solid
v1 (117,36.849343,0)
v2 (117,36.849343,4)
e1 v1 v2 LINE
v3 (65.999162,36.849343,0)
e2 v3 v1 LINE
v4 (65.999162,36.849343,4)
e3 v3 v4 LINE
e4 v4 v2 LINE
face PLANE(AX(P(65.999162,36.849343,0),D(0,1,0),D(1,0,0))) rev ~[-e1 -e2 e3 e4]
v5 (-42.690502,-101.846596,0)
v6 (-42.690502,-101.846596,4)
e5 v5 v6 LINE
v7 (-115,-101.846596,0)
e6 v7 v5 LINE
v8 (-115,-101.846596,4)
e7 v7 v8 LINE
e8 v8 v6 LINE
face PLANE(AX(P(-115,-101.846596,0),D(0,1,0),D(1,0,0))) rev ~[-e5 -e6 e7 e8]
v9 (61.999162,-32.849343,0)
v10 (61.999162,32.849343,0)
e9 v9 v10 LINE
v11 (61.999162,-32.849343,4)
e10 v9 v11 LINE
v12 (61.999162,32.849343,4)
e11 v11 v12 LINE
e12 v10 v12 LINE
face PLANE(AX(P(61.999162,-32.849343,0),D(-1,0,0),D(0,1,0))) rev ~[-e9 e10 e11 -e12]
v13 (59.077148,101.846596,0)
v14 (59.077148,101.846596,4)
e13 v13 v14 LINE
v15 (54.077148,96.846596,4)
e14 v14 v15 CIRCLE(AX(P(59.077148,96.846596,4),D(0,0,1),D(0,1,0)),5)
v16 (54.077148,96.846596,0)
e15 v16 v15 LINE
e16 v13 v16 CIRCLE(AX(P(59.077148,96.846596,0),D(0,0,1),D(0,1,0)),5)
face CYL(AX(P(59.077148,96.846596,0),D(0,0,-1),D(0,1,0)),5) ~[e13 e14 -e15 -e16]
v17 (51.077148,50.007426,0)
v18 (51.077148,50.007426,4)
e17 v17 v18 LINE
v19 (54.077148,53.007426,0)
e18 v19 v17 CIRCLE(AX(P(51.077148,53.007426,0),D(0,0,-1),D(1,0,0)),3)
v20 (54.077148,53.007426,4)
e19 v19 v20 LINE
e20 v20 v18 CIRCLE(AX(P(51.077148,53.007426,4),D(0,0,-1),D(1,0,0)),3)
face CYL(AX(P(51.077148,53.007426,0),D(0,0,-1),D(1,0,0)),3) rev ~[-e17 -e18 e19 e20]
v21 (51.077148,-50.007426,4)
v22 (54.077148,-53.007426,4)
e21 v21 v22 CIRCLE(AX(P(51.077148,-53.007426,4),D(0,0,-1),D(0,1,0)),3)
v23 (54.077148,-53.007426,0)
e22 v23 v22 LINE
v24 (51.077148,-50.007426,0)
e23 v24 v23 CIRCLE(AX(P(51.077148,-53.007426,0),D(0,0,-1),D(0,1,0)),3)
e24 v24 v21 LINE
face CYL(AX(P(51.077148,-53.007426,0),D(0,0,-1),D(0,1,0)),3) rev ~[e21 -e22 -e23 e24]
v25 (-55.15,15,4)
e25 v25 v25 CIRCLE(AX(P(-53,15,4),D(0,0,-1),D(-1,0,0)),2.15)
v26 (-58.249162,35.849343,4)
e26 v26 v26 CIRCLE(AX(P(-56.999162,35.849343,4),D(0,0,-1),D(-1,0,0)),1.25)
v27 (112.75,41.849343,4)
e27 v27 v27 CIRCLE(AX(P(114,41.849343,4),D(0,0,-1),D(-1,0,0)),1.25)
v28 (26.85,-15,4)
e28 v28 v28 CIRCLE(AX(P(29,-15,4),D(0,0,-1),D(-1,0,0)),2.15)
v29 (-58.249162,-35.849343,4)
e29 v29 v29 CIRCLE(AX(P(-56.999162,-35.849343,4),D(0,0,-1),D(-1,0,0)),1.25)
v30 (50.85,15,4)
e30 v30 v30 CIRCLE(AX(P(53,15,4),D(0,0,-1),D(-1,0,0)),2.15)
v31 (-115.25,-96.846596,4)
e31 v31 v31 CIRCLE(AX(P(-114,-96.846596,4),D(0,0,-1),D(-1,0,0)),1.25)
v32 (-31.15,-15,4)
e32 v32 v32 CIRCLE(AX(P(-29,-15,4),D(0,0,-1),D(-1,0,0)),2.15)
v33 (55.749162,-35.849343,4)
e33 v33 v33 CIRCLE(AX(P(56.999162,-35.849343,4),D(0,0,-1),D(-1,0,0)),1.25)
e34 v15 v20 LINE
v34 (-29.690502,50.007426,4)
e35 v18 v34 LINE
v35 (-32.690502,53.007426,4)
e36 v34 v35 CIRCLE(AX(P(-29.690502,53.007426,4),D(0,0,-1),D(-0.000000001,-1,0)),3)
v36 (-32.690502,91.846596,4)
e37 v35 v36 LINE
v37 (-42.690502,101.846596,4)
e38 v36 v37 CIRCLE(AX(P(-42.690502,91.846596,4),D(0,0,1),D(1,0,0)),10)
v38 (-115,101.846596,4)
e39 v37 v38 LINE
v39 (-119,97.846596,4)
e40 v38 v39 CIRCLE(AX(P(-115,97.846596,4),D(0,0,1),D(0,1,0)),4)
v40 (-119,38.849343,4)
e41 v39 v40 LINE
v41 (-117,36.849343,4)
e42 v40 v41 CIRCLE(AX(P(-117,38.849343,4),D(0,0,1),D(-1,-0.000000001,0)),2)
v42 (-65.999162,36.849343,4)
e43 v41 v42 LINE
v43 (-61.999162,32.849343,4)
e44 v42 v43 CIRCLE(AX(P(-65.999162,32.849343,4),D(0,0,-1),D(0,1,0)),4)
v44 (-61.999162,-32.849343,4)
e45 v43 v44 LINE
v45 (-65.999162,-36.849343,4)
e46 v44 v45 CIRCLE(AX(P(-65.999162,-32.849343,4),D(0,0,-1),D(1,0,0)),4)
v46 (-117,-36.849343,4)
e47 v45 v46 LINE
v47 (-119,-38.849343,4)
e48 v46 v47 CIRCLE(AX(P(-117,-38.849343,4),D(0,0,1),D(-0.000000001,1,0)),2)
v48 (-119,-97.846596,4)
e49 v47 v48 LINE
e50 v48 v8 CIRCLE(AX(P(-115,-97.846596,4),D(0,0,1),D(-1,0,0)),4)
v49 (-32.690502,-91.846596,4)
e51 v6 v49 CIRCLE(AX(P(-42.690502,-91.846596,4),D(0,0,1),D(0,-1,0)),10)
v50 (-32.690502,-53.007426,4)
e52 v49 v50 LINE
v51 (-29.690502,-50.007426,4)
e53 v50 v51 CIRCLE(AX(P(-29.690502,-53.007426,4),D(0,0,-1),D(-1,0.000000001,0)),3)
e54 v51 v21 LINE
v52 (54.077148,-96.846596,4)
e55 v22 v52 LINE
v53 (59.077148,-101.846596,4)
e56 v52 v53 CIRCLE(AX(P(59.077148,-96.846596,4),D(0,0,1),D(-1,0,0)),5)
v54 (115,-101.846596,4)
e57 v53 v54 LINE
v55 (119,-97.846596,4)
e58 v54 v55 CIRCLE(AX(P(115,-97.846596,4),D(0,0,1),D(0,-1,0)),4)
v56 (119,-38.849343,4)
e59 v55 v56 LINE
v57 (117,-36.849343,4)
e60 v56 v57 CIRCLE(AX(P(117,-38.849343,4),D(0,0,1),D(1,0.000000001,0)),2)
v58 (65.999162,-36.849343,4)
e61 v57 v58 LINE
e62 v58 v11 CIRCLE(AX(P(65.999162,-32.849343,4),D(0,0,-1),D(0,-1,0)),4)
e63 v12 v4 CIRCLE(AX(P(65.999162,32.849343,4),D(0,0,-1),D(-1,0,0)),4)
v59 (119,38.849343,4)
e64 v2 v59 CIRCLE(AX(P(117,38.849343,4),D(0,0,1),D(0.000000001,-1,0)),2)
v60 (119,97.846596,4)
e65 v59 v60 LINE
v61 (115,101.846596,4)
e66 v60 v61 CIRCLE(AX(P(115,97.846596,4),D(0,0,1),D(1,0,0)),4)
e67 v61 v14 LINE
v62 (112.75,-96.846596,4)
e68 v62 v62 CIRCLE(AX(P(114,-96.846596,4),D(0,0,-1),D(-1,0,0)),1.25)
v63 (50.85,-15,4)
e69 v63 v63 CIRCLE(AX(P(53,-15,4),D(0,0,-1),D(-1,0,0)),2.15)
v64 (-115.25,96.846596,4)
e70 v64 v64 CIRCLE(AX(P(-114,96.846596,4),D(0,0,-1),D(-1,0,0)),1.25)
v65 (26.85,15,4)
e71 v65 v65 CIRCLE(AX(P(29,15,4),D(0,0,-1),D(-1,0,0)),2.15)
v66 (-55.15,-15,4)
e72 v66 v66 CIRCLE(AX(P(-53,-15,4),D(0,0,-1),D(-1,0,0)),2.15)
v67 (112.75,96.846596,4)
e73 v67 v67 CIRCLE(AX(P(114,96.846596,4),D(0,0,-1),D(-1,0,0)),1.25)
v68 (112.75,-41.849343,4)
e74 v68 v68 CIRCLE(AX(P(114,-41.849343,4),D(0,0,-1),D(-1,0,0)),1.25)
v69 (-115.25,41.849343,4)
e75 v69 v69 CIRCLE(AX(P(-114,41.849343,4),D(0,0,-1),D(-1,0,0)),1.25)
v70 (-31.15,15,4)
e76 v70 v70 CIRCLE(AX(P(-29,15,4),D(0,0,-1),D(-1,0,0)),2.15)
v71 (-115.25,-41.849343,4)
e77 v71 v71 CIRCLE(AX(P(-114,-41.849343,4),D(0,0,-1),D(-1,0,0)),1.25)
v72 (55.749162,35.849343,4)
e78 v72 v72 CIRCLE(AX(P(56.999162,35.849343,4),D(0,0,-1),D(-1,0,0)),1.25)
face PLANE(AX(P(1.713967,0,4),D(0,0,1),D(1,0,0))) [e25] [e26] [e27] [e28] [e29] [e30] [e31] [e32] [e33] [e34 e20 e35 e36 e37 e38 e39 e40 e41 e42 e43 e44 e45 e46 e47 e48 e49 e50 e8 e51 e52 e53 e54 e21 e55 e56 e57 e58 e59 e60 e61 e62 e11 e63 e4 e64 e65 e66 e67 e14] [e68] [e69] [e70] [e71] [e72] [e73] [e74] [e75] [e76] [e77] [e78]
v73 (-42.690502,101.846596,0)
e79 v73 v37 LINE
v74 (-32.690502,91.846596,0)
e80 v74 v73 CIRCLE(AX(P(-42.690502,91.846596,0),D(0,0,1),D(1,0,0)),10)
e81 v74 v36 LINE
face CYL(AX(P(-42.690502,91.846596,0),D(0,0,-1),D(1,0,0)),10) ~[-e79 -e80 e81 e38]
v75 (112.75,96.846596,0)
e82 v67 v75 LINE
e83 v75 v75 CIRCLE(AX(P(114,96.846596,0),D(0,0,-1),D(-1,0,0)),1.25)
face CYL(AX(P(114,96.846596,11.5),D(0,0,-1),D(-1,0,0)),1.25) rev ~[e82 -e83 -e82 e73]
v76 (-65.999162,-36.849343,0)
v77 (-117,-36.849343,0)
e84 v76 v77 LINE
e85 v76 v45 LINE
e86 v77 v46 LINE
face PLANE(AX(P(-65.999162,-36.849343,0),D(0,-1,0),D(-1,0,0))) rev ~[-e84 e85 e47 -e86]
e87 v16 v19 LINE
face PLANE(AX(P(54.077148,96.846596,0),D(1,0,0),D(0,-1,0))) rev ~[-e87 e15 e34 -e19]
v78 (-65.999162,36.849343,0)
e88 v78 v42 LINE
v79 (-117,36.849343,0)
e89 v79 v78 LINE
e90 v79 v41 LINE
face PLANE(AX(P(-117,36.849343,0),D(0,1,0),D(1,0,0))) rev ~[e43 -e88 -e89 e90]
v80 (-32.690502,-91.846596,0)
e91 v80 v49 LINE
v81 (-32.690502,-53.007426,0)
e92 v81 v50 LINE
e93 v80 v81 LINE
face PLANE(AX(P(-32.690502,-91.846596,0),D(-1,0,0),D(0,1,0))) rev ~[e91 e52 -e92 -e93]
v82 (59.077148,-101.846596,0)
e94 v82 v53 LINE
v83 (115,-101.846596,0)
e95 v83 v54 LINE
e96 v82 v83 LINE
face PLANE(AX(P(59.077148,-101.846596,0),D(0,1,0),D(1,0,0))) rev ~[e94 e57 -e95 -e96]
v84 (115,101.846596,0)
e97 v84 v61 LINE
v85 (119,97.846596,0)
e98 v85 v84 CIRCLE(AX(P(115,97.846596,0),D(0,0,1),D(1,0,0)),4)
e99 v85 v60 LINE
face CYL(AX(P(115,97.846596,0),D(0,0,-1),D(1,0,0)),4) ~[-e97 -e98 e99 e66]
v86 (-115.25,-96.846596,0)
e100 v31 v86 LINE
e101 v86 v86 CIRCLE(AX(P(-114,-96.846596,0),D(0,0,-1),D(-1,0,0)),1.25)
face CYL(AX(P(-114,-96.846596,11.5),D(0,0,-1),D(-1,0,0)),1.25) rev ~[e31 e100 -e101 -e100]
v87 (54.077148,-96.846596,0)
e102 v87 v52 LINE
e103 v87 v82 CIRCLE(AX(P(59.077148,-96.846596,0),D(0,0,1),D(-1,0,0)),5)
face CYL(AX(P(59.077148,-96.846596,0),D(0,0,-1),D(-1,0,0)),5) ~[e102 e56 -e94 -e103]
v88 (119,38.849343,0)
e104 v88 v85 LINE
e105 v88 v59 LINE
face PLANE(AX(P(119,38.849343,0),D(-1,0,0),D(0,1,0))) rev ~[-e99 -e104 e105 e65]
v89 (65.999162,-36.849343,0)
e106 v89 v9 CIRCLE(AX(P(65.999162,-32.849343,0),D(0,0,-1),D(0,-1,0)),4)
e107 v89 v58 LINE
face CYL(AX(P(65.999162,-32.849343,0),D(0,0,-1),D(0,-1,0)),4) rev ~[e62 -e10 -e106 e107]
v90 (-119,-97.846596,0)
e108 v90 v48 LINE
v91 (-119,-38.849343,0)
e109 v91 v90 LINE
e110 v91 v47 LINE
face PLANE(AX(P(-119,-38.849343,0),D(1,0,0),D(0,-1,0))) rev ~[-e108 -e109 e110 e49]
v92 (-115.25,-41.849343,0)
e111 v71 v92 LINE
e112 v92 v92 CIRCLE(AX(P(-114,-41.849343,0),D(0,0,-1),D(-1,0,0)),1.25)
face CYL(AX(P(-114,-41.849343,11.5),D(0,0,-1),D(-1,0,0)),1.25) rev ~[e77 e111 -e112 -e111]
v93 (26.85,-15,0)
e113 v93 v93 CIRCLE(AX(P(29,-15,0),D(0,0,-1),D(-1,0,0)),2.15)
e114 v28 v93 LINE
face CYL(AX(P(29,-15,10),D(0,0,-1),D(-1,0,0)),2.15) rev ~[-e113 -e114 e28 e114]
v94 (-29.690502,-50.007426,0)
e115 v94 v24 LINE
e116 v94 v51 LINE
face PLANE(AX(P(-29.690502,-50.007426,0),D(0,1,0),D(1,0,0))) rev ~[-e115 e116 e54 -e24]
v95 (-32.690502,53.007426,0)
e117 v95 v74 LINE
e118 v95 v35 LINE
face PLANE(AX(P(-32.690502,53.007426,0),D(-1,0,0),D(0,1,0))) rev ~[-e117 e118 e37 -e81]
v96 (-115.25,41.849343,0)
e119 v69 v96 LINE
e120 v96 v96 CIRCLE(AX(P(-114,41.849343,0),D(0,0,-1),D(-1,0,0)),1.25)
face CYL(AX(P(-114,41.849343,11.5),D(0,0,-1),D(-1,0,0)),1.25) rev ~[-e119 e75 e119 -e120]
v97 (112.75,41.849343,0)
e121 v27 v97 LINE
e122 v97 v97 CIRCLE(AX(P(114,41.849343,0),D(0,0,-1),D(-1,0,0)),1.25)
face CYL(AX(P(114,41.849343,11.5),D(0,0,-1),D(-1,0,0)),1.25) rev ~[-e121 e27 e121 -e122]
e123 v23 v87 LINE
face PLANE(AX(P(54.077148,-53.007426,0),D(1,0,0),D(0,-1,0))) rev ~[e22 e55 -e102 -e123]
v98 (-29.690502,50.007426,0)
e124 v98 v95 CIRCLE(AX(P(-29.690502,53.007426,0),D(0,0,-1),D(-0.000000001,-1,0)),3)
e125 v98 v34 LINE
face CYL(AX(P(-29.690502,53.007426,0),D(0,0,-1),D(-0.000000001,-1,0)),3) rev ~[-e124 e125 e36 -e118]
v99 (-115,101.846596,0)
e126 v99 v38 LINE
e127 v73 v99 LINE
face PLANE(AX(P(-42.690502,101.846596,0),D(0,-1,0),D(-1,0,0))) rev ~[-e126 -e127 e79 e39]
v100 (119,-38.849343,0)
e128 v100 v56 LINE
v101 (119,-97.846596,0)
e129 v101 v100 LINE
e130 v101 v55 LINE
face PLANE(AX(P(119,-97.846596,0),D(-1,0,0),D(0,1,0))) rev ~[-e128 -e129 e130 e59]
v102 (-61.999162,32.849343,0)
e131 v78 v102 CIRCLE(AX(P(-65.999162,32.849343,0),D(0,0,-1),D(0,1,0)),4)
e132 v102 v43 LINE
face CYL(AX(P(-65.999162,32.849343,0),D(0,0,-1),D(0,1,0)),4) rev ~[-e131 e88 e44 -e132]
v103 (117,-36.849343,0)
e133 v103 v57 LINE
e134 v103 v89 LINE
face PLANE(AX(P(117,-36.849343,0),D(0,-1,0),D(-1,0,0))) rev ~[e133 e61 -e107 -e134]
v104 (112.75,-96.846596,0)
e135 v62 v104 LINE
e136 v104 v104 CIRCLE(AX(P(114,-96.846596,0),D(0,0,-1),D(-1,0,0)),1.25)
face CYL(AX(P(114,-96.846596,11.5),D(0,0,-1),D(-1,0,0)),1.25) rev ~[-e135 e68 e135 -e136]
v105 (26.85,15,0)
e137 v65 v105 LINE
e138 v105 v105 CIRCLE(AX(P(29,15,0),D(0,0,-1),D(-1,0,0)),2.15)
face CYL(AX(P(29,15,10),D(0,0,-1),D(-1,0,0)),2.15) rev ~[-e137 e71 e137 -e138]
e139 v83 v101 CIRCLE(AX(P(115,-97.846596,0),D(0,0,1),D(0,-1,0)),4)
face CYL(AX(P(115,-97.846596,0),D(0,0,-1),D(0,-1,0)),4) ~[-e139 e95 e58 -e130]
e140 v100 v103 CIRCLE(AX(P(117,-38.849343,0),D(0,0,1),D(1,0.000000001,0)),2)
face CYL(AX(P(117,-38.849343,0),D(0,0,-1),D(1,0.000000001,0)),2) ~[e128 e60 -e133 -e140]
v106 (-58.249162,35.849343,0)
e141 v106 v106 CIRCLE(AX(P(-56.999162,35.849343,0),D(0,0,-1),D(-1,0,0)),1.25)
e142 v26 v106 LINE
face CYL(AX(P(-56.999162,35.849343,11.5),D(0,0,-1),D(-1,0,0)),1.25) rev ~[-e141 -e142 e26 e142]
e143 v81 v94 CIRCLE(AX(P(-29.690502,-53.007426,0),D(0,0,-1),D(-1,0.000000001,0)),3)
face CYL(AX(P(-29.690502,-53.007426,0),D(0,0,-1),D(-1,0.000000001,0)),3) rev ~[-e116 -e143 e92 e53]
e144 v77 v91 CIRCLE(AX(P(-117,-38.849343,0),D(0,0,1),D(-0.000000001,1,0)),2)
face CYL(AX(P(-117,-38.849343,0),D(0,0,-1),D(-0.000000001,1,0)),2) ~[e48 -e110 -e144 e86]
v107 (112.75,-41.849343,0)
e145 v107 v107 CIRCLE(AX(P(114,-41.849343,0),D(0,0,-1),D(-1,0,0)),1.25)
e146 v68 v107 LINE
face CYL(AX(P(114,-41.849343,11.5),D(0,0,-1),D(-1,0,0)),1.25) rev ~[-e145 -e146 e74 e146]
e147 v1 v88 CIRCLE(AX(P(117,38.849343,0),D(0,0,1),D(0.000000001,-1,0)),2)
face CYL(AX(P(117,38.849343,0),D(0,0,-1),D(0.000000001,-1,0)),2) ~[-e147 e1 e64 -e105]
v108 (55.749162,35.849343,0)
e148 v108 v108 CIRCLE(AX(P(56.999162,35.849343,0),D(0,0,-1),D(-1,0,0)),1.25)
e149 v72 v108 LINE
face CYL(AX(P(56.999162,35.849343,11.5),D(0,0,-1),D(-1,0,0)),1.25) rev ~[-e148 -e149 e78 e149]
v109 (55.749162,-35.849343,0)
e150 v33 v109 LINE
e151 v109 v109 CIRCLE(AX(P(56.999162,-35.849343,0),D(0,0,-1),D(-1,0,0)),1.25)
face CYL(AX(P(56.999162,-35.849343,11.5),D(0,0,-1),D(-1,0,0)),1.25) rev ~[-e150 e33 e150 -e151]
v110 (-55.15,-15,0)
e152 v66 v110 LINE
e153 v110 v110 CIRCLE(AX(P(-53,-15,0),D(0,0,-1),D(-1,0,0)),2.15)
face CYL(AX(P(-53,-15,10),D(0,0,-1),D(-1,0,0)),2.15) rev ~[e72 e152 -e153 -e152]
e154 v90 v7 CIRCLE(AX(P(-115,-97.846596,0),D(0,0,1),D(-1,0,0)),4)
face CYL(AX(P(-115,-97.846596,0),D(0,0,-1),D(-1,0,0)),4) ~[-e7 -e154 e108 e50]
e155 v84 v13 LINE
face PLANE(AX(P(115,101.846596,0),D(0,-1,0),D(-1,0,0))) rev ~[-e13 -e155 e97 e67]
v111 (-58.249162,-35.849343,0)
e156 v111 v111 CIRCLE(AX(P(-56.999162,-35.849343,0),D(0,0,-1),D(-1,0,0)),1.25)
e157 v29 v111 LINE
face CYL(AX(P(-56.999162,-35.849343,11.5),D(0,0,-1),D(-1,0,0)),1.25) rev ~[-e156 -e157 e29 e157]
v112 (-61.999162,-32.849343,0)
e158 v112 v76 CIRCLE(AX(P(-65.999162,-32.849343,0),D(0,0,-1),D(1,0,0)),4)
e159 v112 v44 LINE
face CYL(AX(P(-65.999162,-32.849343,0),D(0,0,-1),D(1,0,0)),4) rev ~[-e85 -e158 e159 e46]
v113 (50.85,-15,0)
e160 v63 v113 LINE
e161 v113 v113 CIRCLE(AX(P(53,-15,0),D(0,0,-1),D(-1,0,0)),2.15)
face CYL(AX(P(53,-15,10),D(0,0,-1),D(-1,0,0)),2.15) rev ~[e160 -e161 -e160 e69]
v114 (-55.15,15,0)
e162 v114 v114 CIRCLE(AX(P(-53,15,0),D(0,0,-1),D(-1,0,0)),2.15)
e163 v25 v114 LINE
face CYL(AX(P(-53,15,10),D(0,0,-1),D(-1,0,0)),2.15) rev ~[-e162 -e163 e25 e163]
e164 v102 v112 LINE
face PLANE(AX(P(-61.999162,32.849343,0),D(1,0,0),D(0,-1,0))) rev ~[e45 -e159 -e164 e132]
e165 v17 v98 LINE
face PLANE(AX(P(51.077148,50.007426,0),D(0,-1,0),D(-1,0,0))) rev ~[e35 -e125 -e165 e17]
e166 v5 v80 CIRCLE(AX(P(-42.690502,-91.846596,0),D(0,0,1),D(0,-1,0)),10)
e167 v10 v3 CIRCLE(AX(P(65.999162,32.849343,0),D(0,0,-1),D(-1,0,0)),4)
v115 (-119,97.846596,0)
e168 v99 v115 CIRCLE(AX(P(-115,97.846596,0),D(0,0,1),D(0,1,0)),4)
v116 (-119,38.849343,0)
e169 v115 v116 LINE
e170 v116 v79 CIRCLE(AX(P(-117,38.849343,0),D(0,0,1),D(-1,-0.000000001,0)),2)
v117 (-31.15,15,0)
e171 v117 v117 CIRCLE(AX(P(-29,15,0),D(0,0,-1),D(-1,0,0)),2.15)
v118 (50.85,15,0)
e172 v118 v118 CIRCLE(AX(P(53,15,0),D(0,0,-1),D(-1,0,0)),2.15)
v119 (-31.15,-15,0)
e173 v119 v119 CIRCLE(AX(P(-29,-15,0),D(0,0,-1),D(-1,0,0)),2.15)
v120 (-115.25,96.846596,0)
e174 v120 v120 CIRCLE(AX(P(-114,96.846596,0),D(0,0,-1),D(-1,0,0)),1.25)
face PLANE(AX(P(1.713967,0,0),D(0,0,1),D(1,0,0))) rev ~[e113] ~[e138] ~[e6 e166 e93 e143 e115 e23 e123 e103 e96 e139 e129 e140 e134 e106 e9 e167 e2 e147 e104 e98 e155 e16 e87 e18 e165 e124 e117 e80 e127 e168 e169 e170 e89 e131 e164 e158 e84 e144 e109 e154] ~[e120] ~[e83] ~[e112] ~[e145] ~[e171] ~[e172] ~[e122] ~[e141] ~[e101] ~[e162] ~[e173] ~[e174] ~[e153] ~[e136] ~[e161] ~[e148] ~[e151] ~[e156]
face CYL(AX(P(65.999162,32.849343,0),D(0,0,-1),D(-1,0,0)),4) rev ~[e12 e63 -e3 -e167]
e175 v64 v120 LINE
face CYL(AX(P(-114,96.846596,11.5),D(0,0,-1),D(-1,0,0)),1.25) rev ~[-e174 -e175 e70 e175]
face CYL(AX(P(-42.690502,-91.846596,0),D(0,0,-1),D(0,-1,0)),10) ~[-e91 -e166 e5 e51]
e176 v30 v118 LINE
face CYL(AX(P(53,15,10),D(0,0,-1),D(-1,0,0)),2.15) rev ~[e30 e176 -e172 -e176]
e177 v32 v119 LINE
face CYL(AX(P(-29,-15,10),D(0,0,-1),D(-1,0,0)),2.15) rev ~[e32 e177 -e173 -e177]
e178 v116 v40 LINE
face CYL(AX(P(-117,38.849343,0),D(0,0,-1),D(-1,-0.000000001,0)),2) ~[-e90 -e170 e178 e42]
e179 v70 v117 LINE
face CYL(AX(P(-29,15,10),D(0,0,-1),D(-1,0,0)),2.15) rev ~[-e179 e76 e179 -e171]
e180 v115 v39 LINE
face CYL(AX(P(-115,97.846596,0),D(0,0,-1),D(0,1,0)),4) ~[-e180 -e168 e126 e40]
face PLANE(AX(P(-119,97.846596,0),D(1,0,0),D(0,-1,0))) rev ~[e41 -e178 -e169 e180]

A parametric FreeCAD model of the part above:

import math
import FreeCAD as App
import Part
import Sketcher
Q = App.Units.Quantity

doc = App.newDocument("Part")
body = doc.addObject("PartDesign::Body", "Body")

# Sketch on XY plane
sketch1 = body.newObject("Sketcher::SketchObject", "Sketch")
sketch1.AttachmentSupport = (doc.getObject("XY_Plane"), [""])
sketch1.MapMode = "FlatFace"
sketch1.addGeometry(Part.LineSegment(App.Vector(-119, 97.8, 0), App.Vector(-119, 38.8, 0)), False)
sketch1.addGeometry(Part.ArcOfCircle(Part.Circle(App.Vector(-117, 38.8, 0), App.Vector(0, 0, 1), 2), math.radians(-180), math.radians(-90)), False)
sketch1.addGeometry(Part.LineSegment(App.Vector(-117, 36.8, 0), App.Vector(-66, 36.8, 0)), False)
sketch1.addGeometry(Part.ArcOfCircle(Part.Circle(App.Vector(-66, 32.8, 0), App.Vector(0, 0, 1), 4), math.radians(0), math.radians(90)), False)
sketch1.addGeometry(Part.LineSegment(App.Vector(-62, 32.8, 0), App.Vector(-62, -32.8, 0)), False)
sketch1.addGeometry(Part.ArcOfCircle(Part.Circle(App.Vector(-66, -32.8, 0), App.Vector(0, 0, 1), 4), math.radians(-90), math.radians(0)), False)
sketch1.addGeometry(Part.LineSegment(App.Vector(-66, -36.8, 0), App.Vector(-117, -36.8, 0)), False)
sketch1.addGeometry(Part.ArcOfCircle(Part.Circle(App.Vector(-117, -38.8, 0), App.Vector(0, 0, 1), 2), math.radians(90), math.radians(180)), False)
sketch1.addGeometry(Part.LineSegment(App.Vector(-119, -38.8, 0), App.Vector(-119, -97.8, 0)), False)
sketch1.addGeometry(Part.ArcOfCircle(Part.Circle(App.Vector(-115, -97.8, 0), App.Vector(0, 0, 1), 4), math.radians(180), math.radians(270)), False)
sketch1.addGeometry(Part.LineSegment(App.Vector(-115, -101.8, 0), App.Vector(-42.7, -101.8, 0)), False)
sketch1.addGeometry(Part.ArcOfCircle(Part.Circle(App.Vector(-42.7, -91.8, 0), App.Vector(0, 0, 1), 10), math.radians(-90), math.radians(0)), False)
sketch1.addGeometry(Part.LineSegment(App.Vector(-32.7, -91.8, 0), App.Vector(-32.7, -53, 0)), False)
sketch1.addGeometry(Part.ArcOfCircle(Part.Circle(App.Vector(-29.7, -53, 0), App.Vector(0, 0, 1), 3), math.radians(90), math.radians(180)), False)
sketch1.addGeometry(Part.LineSegment(App.Vector(-29.7, -50, 0), App.Vector(51.1, -50, 0)), False)
sketch1.addGeometry(Part.ArcOfCircle(Part.Circle(App.Vector(51.1, -53, 0), App.Vector(0, 0, 1), 3), math.radians(0), math.radians(90)), False)
sketch1.addGeometry(Part.LineSegment(App.Vector(54.1, -53, 0), App.Vector(54.1, -96.8, 0)), False)
sketch1.addGeometry(Part.ArcOfCircle(Part.Circle(App.Vector(59.1, -96.8, 0), App.Vector(0, 0, 1), 5), math.radians(180), math.radians(270)), False)
sketch1.addGeometry(Part.LineSegment(App.Vector(59.1, -101.8, 0), App.Vector(115, -101.8, 0)), False)
sketch1.addGeometry(Part.ArcOfCircle(Part.Circle(App.Vector(115, -97.8, 0), App.Vector(0, 0, 1), 4), math.radians(-90), math.radians(0)), False)
sketch1.addGeometry(Part.LineSegment(App.Vector(119, -97.8, 0), App.Vector(119, -38.8, 0)), False)
sketch1.addGeometry(Part.ArcOfCircle(Part.Circle(App.Vector(117, -38.8, 0), App.Vector(0, 0, 1), 2), math.radians(0), math.radians(90)), False)
sketch1.addGeometry(Part.LineSegment(App.Vector(117, -36.8, 0), App.Vector(66, -36.8, 0)), False)
sketch1.addGeometry(Part.ArcOfCircle(Part.Circle(App.Vector(66, -32.8, 0), App.Vector(0, 0, 1), 4), math.radians(-180), math.radians(-90)), False)
sketch1.addGeometry(Part.LineSegment(App.Vector(62, -32.8, 0), App.Vector(62, 32.8, 0)), False)
sketch1.addGeometry(Part.ArcOfCircle(Part.Circle(App.Vector(66, 32.8, 0), App.Vector(0, 0, 1), 4), math.radians(90), math.radians(180)), False)
sketch1.addGeometry(Part.LineSegment(App.Vector(66, 36.8, 0), App.Vector(117, 36.8, 0)), False)
sketch1.addGeometry(Part.ArcOfCircle(Part.Circle(App.Vector(117, 38.8, 0), App.Vector(0, 0, 1), 2), math.radians(-90), math.radians(0)), False)
sketch1.addGeometry(Part.LineSegment(App.Vector(119, 38.8, 0), App.Vector(119, 97.8, 0)), False)
sketch1.addGeometry(Part.ArcOfCircle(Part.Circle(App.Vector(115, 97.8, 0), App.Vector(0, 0, 1), 4), math.radians(0), math.radians(90)), False)
sketch1.addGeometry(Part.LineSegment(App.Vector(115, 101.8, 0), App.Vector(59.1, 101.8, 0)), False)
sketch1.addGeometry(Part.ArcOfCircle(Part.Circle(App.Vector(59.1, 96.8, 0), App.Vector(0, 0, 1), 5), math.radians(90), math.radians(180)), False)
sketch1.addGeometry(Part.LineSegment(App.Vector(54.1, 96.8, 0), App.Vector(54.1, 53, 0)), False)
sketch1.addGeometry(Part.ArcOfCircle(Part.Circle(App.Vector(51.1, 53, 0), App.Vector(0, 0, 1), 3), math.radians(-90), math.radians(0)), False)
sketch1.addGeometry(Part.LineSegment(App.Vector(51.1, 50, 0), App.Vector(-29.7, 50, 0)), False)
sketch1.addGeometry(Part.ArcOfCircle(Part.Circle(App.Vector(-29.7, 53, 0), App.Vector(0, 0, 1), 3), math.radians(-180), math.radians(-90)), False)
sketch1.addGeometry(Part.LineSegment(App.Vector(-32.7, 53, 0), App.Vector(-32.7, 91.8, 0)), False)
sketch1.addGeometry(Part.ArcOfCircle(Part.Circle(App.Vector(-42.7, 91.8, 0), App.Vector(0, 0, 1), 10), math.radians(0), math.radians(90)), False)
sketch1.addGeometry(Part.LineSegment(App.Vector(-42.7, 101.8, 0), App.Vector(-115, 101.8, 0)), False)
sketch1.addGeometry(Part.ArcOfCircle(Part.Circle(App.Vector(-115, 97.8, 0), App.Vector(0, 0, 1), 4), math.radians(90), math.radians(180)), False)
sketch1.addGeometry(Part.Circle(App.Vector(-114, -96.8, 0), App.Vector(0, 0, 1), 1), False)
sketch1.addGeometry(Part.Circle(App.Vector(-114, -41.8, 0), App.Vector(0, 0, 1), 1), False)
sketch1.addGeometry(Part.Circle(App.Vector(-57, -35.8, 0), App.Vector(0, 0, 1), 1), False)
sketch1.addGeometry(Part.Circle(App.Vector(-53, -15, 0), App.Vector(0, 0, 1), 1.5), False)
sketch1.addGeometry(Part.Circle(App.Vector(-29, -15, 0), App.Vector(0, 0, 1), 1.5), False)
sketch1.addGeometry(Part.Circle(App.Vector(114, -96.8, 0), App.Vector(0, 0, 1), 1), False)
sketch1.addGeometry(Part.Circle(App.Vector(57, -35.8, 0), App.Vector(0, 0, 1), 1), False)
sketch1.addGeometry(Part.Circle(App.Vector(29, -15, 0), App.Vector(0, 0, 1), 1.5), False)
sketch1.addGeometry(Part.Circle(App.Vector(53, -15, 0), App.Vector(0, 0, 1), 1.5), False)
sketch1.addGeometry(Part.Circle(App.Vector(114, -41.8, 0), App.Vector(0, 0, 1), 1), False)
sketch1.addGeometry(Part.Circle(App.Vector(-114, 41.8, 0), App.Vector(0, 0, 1), 1), False)
sketch1.addGeometry(Part.Circle(App.Vector(-53, 15, 0), App.Vector(0, 0, 1), 1.5), False)
sketch1.addGeometry(Part.Circle(App.Vector(-29, 15, 0), App.Vector(0, 0, 1), 1.5), False)
sketch1.addGeometry(Part.Circle(App.Vector(-57, 35.8, 0), App.Vector(0, 0, 1), 1), False)
sketch1.addGeometry(Part.Circle(App.Vector(-114, 96.8, 0), App.Vector(0, 0, 1), 1), False)
sketch1.addGeometry(Part.Circle(App.Vector(29, 15, 0), App.Vector(0, 0, 1), 1.5), False)
sketch1.addGeometry(Part.Circle(App.Vector(53, 15, 0), App.Vector(0, 0, 1), 1.5), False)
sketch1.addGeometry(Part.Circle(App.Vector(57, 35.8, 0), App.Vector(0, 0, 1), 1), False)
sketch1.addGeometry(Part.Circle(App.Vector(114, 41.8, 0), App.Vector(0, 0, 1), 1), False)
sketch1.addGeometry(Part.Circle(App.Vector(114, 96.8, 0), App.Vector(0, 0, 1), 1), False)
sketch1.addConstraint(Sketcher.Constraint("Tangent", 0, 2, 1, 1))
sketch1.addConstraint(Sketcher.Constraint("Tangent", 1, 2, 2, 1))
sketch1.addConstraint(Sketcher.Constraint("Tangent", 2, 2, 3, 2))
sketch1.addConstraint(Sketcher.Constraint("Tangent", 3, 1, 4, 1))
sketch1.addConstraint(Sketcher.Constraint("Tangent", 4, 2, 5, 2))
sketch1.addConstraint(Sketcher.Constraint("Tangent", 5, 1, 6, 1))
sketch1.addConstraint(Sketcher.Constraint("Tangent", 6, 2, 7, 1))
sketch1.addConstraint(Sketcher.Constraint("Tangent", 7, 2, 8, 1))
sketch1.addConstraint(Sketcher.Constraint("Tangent", 8, 2, 9, 1))
sketch1.addConstraint(Sketcher.Constraint("Tangent", 9, 2, 10, 1))
sketch1.addConstraint(Sketcher.Constraint("Tangent", 10, 2, 11, 1))
sketch1.addConstraint(Sketcher.Constraint("Tangent", 11, 2, 12, 1))
sketch1.addConstraint(Sketcher.Constraint("Tangent", 12, 2, 13, 2))
sketch1.addConstraint(Sketcher.Constraint("Tangent", 13, 1, 14, 1))
sketch1.addConstraint(Sketcher.Constraint("Tangent", 14, 2, 15, 2))
sketch1.addConstraint(Sketcher.Constraint("Tangent", 15, 1, 16, 1))
sketch1.addConstraint(Sketcher.Constraint("Tangent", 16, 2, 17, 1))
sketch1.addConstraint(Sketcher.Constraint("Tangent", 17, 2, 18, 1))
sketch1.addConstraint(Sketcher.Constraint("Tangent", 18, 2, 19, 1))
sketch1.addConstraint(Sketcher.Constraint("Tangent", 19, 2, 20, 1))
sketch1.addConstraint(Sketcher.Constraint("Tangent", 20, 2, 21, 1))
sketch1.addConstraint(Sketcher.Constraint("Tangent", 21, 2, 22, 1))
sketch1.addConstraint(Sketcher.Constraint("Tangent", 22, 2, 23, 2))
sketch1.addConstraint(Sketcher.Constraint("Tangent", 23, 1, 24, 1))
sketch1.addConstraint(Sketcher.Constraint("Tangent", 24, 2, 25, 2))
sketch1.addConstraint(Sketcher.Constraint("Tangent", 25, 1, 26, 1))
sketch1.addConstraint(Sketcher.Constraint("Tangent", 26, 2, 27, 1))
sketch1.addConstraint(Sketcher.Constraint("Tangent", 27, 2, 28, 1))
sketch1.addConstraint(Sketcher.Constraint("Tangent", 28, 2, 29, 1))
sketch1.addConstraint(Sketcher.Constraint("Tangent", 29, 2, 30, 1))
sketch1.addConstraint(Sketcher.Constraint("Tangent", 30, 2, 31, 1))
sketch1.addConstraint(Sketcher.Constraint("Tangent", 31, 2, 32, 1))
sketch1.addConstraint(Sketcher.Constraint("Tangent", 32, 2, 33, 2))
sketch1.addConstraint(Sketcher.Constraint("Tangent", 33, 1, 34, 1))
sketch1.addConstraint(Sketcher.Constraint("Tangent", 34, 2, 35, 2))
sketch1.addConstraint(Sketcher.Constraint("Tangent", 35, 1, 36, 1))
sketch1.addConstraint(Sketcher.Constraint("Tangent", 36, 2, 37, 1))
sketch1.addConstraint(Sketcher.Constraint("Tangent", 37, 2, 38, 1))
sketch1.addConstraint(Sketcher.Constraint("Tangent", 38, 2, 39, 1))
sketch1.addConstraint(Sketcher.Constraint("Tangent", 39, 2, 0, 1))
sketch1.addConstraint(Sketcher.Constraint("Vertical", 0))
sketch1.addConstraint(Sketcher.Constraint("Horizontal", 2))
sketch1.addConstraint(Sketcher.Constraint("Vertical", 4))
sketch1.addConstraint(Sketcher.Constraint("Horizontal", 6))
sketch1.addConstraint(Sketcher.Constraint("Vertical", 8))
sketch1.addConstraint(Sketcher.Constraint("Horizontal", 10))
sketch1.addConstraint(Sketcher.Constraint("Vertical", 12))
sketch1.addConstraint(Sketcher.Constraint("Horizontal", 14))
sketch1.addConstraint(Sketcher.Constraint("Vertical", 16))
sketch1.addConstraint(Sketcher.Constraint("Horizontal", 18))
sketch1.addConstraint(Sketcher.Constraint("Vertical", 20))
sketch1.addConstraint(Sketcher.Constraint("Horizontal", 22))
sketch1.addConstraint(Sketcher.Constraint("Vertical", 24))
sketch1.addConstraint(Sketcher.Constraint("Horizontal", 26))
sketch1.addConstraint(Sketcher.Constraint("Vertical", 28))
sketch1.addConstraint(Sketcher.Constraint("Horizontal", 30))
sketch1.addConstraint(Sketcher.Constraint("Vertical", 32))
sketch1.addConstraint(Sketcher.Constraint("Horizontal", 34))
sketch1.addConstraint(Sketcher.Constraint("Vertical", 36))
sketch1.addConstraint(Sketcher.Constraint("Horizontal", 38))
sketch1.addConstraint(Sketcher.Constraint("Equal", 3, 5))
sketch1.addConstraint(Sketcher.Constraint("Equal", 1, 7))
sketch1.addConstraint(Sketcher.Constraint("Equal", 5, 9))
sketch1.addConstraint(Sketcher.Constraint("Equal", 13, 15))
sketch1.addConstraint(Sketcher.Constraint("Equal", 9, 19))
sketch1.addConstraint(Sketcher.Constraint("Equal", 7, 21))
sketch1.addConstraint(Sketcher.Constraint("Equal", 19, 23))
sketch1.addConstraint(Sketcher.Constraint("Equal", 23, 25))
sketch1.addConstraint(Sketcher.Constraint("Equal", 21, 27))
sketch1.addConstraint(Sketcher.Constraint("Equal", 25, 29))
sketch1.addConstraint(Sketcher.Constraint("Equal", 17, 31))
sketch1.addConstraint(Sketcher.Constraint("Equal", 15, 33))
sketch1.addConstraint(Sketcher.Constraint("Equal", 33, 35))
sketch1.addConstraint(Sketcher.Constraint("Equal", 11, 37))
sketch1.addConstraint(Sketcher.Constraint("Equal", 29, 39))
sketch1.addConstraint(Sketcher.Constraint("Equal", 40, 41))
sketch1.addConstraint(Sketcher.Constraint("Equal", 41, 42))
sketch1.addConstraint(Sketcher.Constraint("Equal", 43, 44))
sketch1.addConstraint(Sketcher.Constraint("Equal", 42, 45))
sketch1.addConstraint(Sketcher.Constraint("Equal", 45, 46))
sketch1.addConstraint(Sketcher.Constraint("Equal", 44, 47))
sketch1.addConstraint(Sketcher.Constraint("Equal", 47, 48))
sketch1.addConstraint(Sketcher.Constraint("Equal", 46, 49))
sketch1.addConstraint(Sketcher.Constraint("Equal", 49, 50))
sketch1.addConstraint(Sketcher.Constraint("Equal", 48, 51))
sketch1.addConstraint(Sketcher.Constraint("Equal", 51, 52))
sketch1.addConstraint(Sketcher.Constraint("Equal", 50, 53))
sketch1.addConstraint(Sketcher.Constraint("Equal", 53, 54))
sketch1.addConstraint(Sketcher.Constraint("Equal", 52, 55))
sketch1.addConstraint(Sketcher.Constraint("Equal", 55, 56))
sketch1.addConstraint(Sketcher.Constraint("Equal", 54, 57))
sketch1.addConstraint(Sketcher.Constraint("Equal", 57, 58))
sketch1.addConstraint(Sketcher.Constraint("Equal", 58, 59))
sketch1.addConstraint(Sketcher.Constraint("Symmetric", 1, 3, 21, 3, -1, 1))
sketch1.addConstraint(Sketcher.Constraint("Symmetric", 5, 3, 25, 3, -1, 1))
sketch1.addConstraint(Sketcher.Constraint("Symmetric", 9, 3, 29, 3, -1, 1))
sketch1.addConstraint(Sketcher.Constraint("Symmetric", 49, 3, 50, 3, -1, 1))
sketch1.addConstraint(Sketcher.Constraint("Symmetric", 48, 3, 51, 3, -1, 1))
sketch1.addConstraint(Sketcher.Constraint("Symmetric", 47, 3, 52, 3, -1, 1))
sketch1.addConstraint(Sketcher.Constraint("Symmetric", 46, 3, 53, 3, -1, 1))
sketch1.addConstraint(Sketcher.Constraint("Symmetric", 45, 3, 54, 3, -1, 1))
sketch1.addConstraint(Sketcher.Constraint("Symmetric", 44, 3, 55, 3, -1, 1))
sketch1.addConstraint(Sketcher.Constraint("Symmetric", 43, 3, 56, 3, -1, 1))
sketch1.addConstraint(Sketcher.Constraint("Symmetric", 42, 3, 57, 3, -1, 1))
sketch1.addConstraint(Sketcher.Constraint("Symmetric", 41, 3, 58, 3, -1, 1))
sketch1.addConstraint(Sketcher.Constraint("Symmetric", 40, 3, 59, 3, -1, 1))
sketch1.addConstraint(Sketcher.Constraint("Symmetric", 9, 3, 19, 3, -2))
sketch1.addConstraint(Sketcher.Constraint("Symmetric", 40, 3, 45, 3, -2))
sketch1.addConstraint(Sketcher.Constraint("Symmetric", 42, 3, 46, 3, -2))
sketch1.addConstraint(Sketcher.Constraint("Symmetric", 44, 3, 47, 3, -2))
sketch1.addConstraint(Sketcher.Constraint("Symmetric", 43, 3, 48, 3, -2))
sketch1.addConstraint(Sketcher.Constraint("Symmetric", 41, 3, 49, 3, -2))
sketch1.addConstraint(Sketcher.Constraint("Symmetric", 15, 3, 33, 3, -1))
sketch1.addConstraint(Sketcher.Constraint("Symmetric", 11, 3, 37, 3, -1))
sketch1.addConstraint(Sketcher.Constraint("Horizontal", 7, 3, 21, 3))
sketch1.addConstraint(Sketcher.Constraint("Horizontal", 17, 3, 40, 3))
sketch1.addConstraint(Sketcher.Constraint("Horizontal", 43, 3, 44, 3))
sketch1.addConstraint(Sketcher.Constraint("Vertical", 40, 3, 41, 3))
sketch1.addConstraint(Sketcher.Constraint("Diameter", 40, Q("2 mm")))
sketch1.addConstraint(Sketcher.Constraint("Diameter", 43, Q("3 mm")))
sketch1.addConstraint(Sketcher.Constraint("Radius", 1, Q("2 mm")))
sketch1.addConstraint(Sketcher.Constraint("Radius", 3, Q("4 mm")))
sketch1.addConstraint(Sketcher.Constraint("Radius", 11, Q("10 mm")))
sketch1.addConstraint(Sketcher.Constraint("Radius", 13, Q("3 mm")))
sketch1.addConstraint(Sketcher.Constraint("Radius", 17, Q("5 mm")))
sketch1.addConstraint(Sketcher.Constraint("DistanceX", 1, 3, -1, 1, Q("117 mm")))
sketch1.addConstraint(Sketcher.Constraint("DistanceX", 40, 3, -1, 1, Q("114 mm")))
sketch1.addConstraint(Sketcher.Constraint("DistanceX", 43, 3, -1, 1, Q("53 mm")))
sketch1.addConstraint(Sketcher.Constraint("DistanceY", 43, 3, -1, 1, Q("15 mm")))
sketch1.addConstraint(Sketcher.Constraint("DistanceX", 44, 3, -1, 1, Q("29 mm")))
sketch1.addConstraint(Sketcher.Constraint("DistanceX", 14, 1, 14, 2, Q("80.76765 mm")))
sketch1.addConstraint(Sketcher.Constraint("DistanceY", 12, 1, 12, 2, Q("38.839171 mm")))
sketch1.addConstraint(Sketcher.Constraint("DistanceX", 2, 1, 2, 2, Q("51.000838 mm")))
sketch1.addConstraint(Sketcher.Constraint("DistanceX", 10, 1, 10, 2, Q("72.309498 mm")))
sketch1.addConstraint(Sketcher.Constraint("DistanceY", 0, 2, 0, 1, Q("58.997253 mm")))
sketch1.addConstraint(Sketcher.Constraint("DistanceY", 4, 2, 4, 1, Q("65.698687 mm")))
sketch1.addConstraint(Sketcher.Constraint("DistanceY", 41, 3, -1, 1, Q("41.849343 mm")))
sketch1.addConstraint(Sketcher.Constraint("DistanceX", 42, 3, -1, 1, Q("56.999162 mm")))
sketch1.addConstraint(Sketcher.Constraint("DistanceY", 42, 3, -1, 1, Q("35.849343 mm")))
pad1 = body.newObject("PartDesign::Pad", "Pad")
pad1.Profile = sketch1
pad1.Length = 4

# Sketch on XY plane
sketch2 = body.newObject("Sketcher::SketchObject", "Sketch001")
sketch2.AttachmentSupport = (doc.getObject("XY_Plane"), [""])
sketch2.MapMode = "FlatFace"
sketch2.AttachmentOffset = App.Placement(App.Vector(0, 0, 4), App.Rotation())
sketch2.addGeometry(Part.Circle(App.Vector(-53, 15, 0), App.Vector(0, 0, 1), 2.1), False)
sketch2.addGeometry(Part.Circle(App.Vector(-29, 15, 0), App.Vector(0, 0, 1), 2.1), False)
sketch2.addGeometry(Part.Circle(App.Vector(-53, -15, 0), App.Vector(0, 0, 1), 2.1), False)
sketch2.addGeometry(Part.Circle(App.Vector(-29, -15, 0), App.Vector(0, 0, 1), 2.1), False)
sketch2.addGeometry(Part.Circle(App.Vector(29, -15, 0), App.Vector(0, 0, 1), 2.1), False)
sketch2.addGeometry(Part.Circle(App.Vector(53, -15, 0), App.Vector(0, 0, 1), 2.1), False)
sketch2.addGeometry(Part.Circle(App.Vector(53, 15, 0), App.Vector(0, 0, 1), 2.1), False)
sketch2.addGeometry(Part.Circle(App.Vector(29, 15, 0), App.Vector(0, 0, 1), 2.1), False)
sketch2.addConstraint(Sketcher.Constraint("Equal", 0, 1))
sketch2.addConstraint(Sketcher.Constraint("Equal", 1, 2))
sketch2.addConstraint(Sketcher.Constraint("Equal", 2, 3))
sketch2.addConstraint(Sketcher.Constraint("Equal", 3, 4))
sketch2.addConstraint(Sketcher.Constraint("Equal", 4, 5))
sketch2.addConstraint(Sketcher.Constraint("Equal", 5, 6))
sketch2.addConstraint(Sketcher.Constraint("Equal", 6, 7))
sketch2.addConstraint(Sketcher.Constraint("Symmetric", 1, 3, 4, 3, -1, 1))
sketch2.addConstraint(Sketcher.Constraint("Symmetric", 0, 3, 5, 3, -1, 1))
sketch2.addConstraint(Sketcher.Constraint("Symmetric", 2, 3, 6, 3, -1, 1))
sketch2.addConstraint(Sketcher.Constraint("Symmetric", 3, 3, 7, 3, -1, 1))
sketch2.addConstraint(Sketcher.Constraint("Symmetric", 3, 3, 4, 3, -2))
sketch2.addConstraint(Sketcher.Constraint("Symmetric", 2, 3, 5, 3, -2))
sketch2.addConstraint(Sketcher.Constraint("Horizontal", 0, 3, 1, 3))
sketch2.addConstraint(Sketcher.Constraint("Diameter", 0, Q("4.3 mm")))
sketch2.addConstraint(Sketcher.Constraint("DistanceX", 0, 3, -1, 1, Q("53 mm")))
sketch2.addConstraint(Sketcher.Constraint("DistanceY", -1, 1, 0, 3, Q("15 mm")))
sketch2.addConstraint(Sketcher.Constraint("DistanceX", 1, 3, -1, 1, Q("29 mm")))
doc.recompute()
hole = body.newObject("PartDesign::Hole", "Hole")
hole.Profile = sketch2
hole.ThreadType = "None"
hole.Diameter = 4.3
hole.DepthType = "Dimension"
hole.Depth = 6
hole.DrillPoint = "Angled"
hole.DrillPointAngle = 118

# Sketch on XY plane
sketch3 = body.newObject("Sketcher::SketchObject", "Sketch002")
sketch3.AttachmentSupport = (doc.getObject("XY_Plane"), [""])
sketch3.MapMode = "FlatFace"
sketch3.AttachmentOffset = App.Placement(App.Vector(0, 0, 4), App.Rotation())
sketch3.addGeometry(Part.Circle(App.Vector(-114, -96.8, 0), App.Vector(0, 0, 1), 1.2), False)
sketch3.addGeometry(Part.Circle(App.Vector(114, -96.8, 0), App.Vector(0, 0, 1), 1.2), False)
sketch3.addGeometry(Part.Circle(App.Vector(114, -41.8, 0), App.Vector(0, 0, 1), 1.2), False)
sketch3.addGeometry(Part.Circle(App.Vector(57, -35.8, 0), App.Vector(0, 0, 1), 1.2), False)
sketch3.addGeometry(Part.Circle(App.Vector(-57, -35.8, 0), App.Vector(0, 0, 1), 1.2), False)
sketch3.addGeometry(Part.Circle(App.Vector(-114, -41.8, 0), App.Vector(0, 0, 1), 1.2), False)
sketch3.addGeometry(Part.Circle(App.Vector(-114, 41.8, 0), App.Vector(0, 0, 1), 1.2), False)
sketch3.addGeometry(Part.Circle(App.Vector(-57, 35.8, 0), App.Vector(0, 0, 1), 1.2), False)
sketch3.addGeometry(Part.Circle(App.Vector(-114, 96.8, 0), App.Vector(0, 0, 1), 1.2), False)
sketch3.addGeometry(Part.Circle(App.Vector(57, 35.8, 0), App.Vector(0, 0, 1), 1.2), False)
sketch3.addGeometry(Part.Circle(App.Vector(114, 41.8, 0), App.Vector(0, 0, 1), 1.2), False)
sketch3.addGeometry(Part.Circle(App.Vector(114, 96.8, 0), App.Vector(0, 0, 1), 1.2), False)
sketch3.addConstraint(Sketcher.Constraint("Equal", 0, 1))
sketch3.addConstraint(Sketcher.Constraint("Equal", 1, 2))
sketch3.addConstraint(Sketcher.Constraint("Equal", 2, 3))
sketch3.addConstraint(Sketcher.Constraint("Equal", 3, 4))
sketch3.addConstraint(Sketcher.Constraint("Equal", 4, 5))
sketch3.addConstraint(Sketcher.Constraint("Equal", 5, 6))
sketch3.addConstraint(Sketcher.Constraint("Equal", 6, 7))
sketch3.addConstraint(Sketcher.Constraint("Equal", 7, 8))
sketch3.addConstraint(Sketcher.Constraint("Equal", 8, 9))
sketch3.addConstraint(Sketcher.Constraint("Equal", 9, 10))
sketch3.addConstraint(Sketcher.Constraint("Equal", 10, 11))
sketch3.addConstraint(Sketcher.Constraint("Symmetric", 2, 3, 6, 3, -1, 1))
sketch3.addConstraint(Sketcher.Constraint("Symmetric", 3, 3, 7, 3, -1, 1))
sketch3.addConstraint(Sketcher.Constraint("Symmetric", 1, 3, 8, 3, -1, 1))
sketch3.addConstraint(Sketcher.Constraint("Symmetric", 4, 3, 9, 3, -1, 1))
sketch3.addConstraint(Sketcher.Constraint("Symmetric", 5, 3, 10, 3, -1, 1))
sketch3.addConstraint(Sketcher.Constraint("Symmetric", 0, 3, 11, 3, -1, 1))
sketch3.addConstraint(Sketcher.Constraint("Symmetric", 0, 3, 1, 3, -2))
sketch3.addConstraint(Sketcher.Constraint("Symmetric", 3, 3, 4, 3, -2))
sketch3.addConstraint(Sketcher.Constraint("Symmetric", 2, 3, 5, 3, -2))
sketch3.addConstraint(Sketcher.Constraint("Vertical", 1, 3, 2, 3))
sketch3.addConstraint(Sketcher.Constraint("Diameter", 0, Q("2.5 mm")))
sketch3.addConstraint(Sketcher.Constraint("DistanceX", 0, 3, -1, 1, Q("114 mm")))
sketch3.addConstraint(Sketcher.Constraint("DistanceY", 2, 3, 3, 3, Q("6 mm")))
sketch3.addConstraint(Sketcher.Constraint("DistanceY", 0, 3, 6, 3, Q("138.69594 mm")))
sketch3.addConstraint(Sketcher.Constraint("DistanceY", 0, 3, -1, 1, Q("96.846596 mm")))
sketch3.addConstraint(Sketcher.Constraint("DistanceX", -1, 1, 3, 3, Q("56.999162 mm")))
doc.recompute()
hole2 = body.newObject("PartDesign::Hole", "Hole001")
hole2.Profile = sketch3
hole2.ThreadType = "None"
hole2.Diameter = 2.5
hole2.DepthType = "Dimension"
hole2.Depth = 7.5
hole2.DrillPoint = "Angled"
hole2.DrillPointAngle = 118

doc.recompute()
